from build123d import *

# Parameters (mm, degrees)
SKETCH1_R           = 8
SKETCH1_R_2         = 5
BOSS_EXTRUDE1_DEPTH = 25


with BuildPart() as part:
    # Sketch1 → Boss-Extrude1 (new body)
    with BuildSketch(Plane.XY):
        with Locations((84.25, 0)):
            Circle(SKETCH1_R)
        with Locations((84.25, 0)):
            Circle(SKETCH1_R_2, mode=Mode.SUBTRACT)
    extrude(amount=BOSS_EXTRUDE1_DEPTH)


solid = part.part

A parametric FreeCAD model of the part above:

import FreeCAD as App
import Part
import Sketcher

V = App.Vector
Q = App.Units.Quantity

doc = App.newDocument("Part")
body = doc.addObject("PartDesign::Body", "Body")

# Sketch on XY plane
sketch1 = body.newObject("Sketcher::SketchObject", "Sketch")
sketch1.AttachmentSupport = (doc.getObject("XY_Plane"), [""])
sketch1.MapMode = "FlatFace"
sketch1.addGeometry(Part.Circle(V(84.25, 0, 0), V(0, 0, 1), 8), False)
sketch1.addGeometry(Part.Circle(V(84.25, 0, 0), V(0, 0, 1), 5), False)
sketch1.addConstraint(Sketcher.Constraint("Coincident", 1, 3, 0, 3))
sketch1.addConstraint(Sketcher.Constraint("PointOnObject", 0, 3, -1))
sketch1.addConstraint(Sketcher.Constraint("Diameter", 0, Q("16 mm")))
sketch1.addConstraint(Sketcher.Constraint("Diameter", 1, Q("10 mm")))
sketch1.addConstraint(Sketcher.Constraint("DistanceX", -1, 1, 0, 3, Q("84.25 mm")))
pad1 = body.newObject("PartDesign::Pad", "Pad")
pad1.Profile = sketch1
pad1.Length = 25

doc.recompute()
